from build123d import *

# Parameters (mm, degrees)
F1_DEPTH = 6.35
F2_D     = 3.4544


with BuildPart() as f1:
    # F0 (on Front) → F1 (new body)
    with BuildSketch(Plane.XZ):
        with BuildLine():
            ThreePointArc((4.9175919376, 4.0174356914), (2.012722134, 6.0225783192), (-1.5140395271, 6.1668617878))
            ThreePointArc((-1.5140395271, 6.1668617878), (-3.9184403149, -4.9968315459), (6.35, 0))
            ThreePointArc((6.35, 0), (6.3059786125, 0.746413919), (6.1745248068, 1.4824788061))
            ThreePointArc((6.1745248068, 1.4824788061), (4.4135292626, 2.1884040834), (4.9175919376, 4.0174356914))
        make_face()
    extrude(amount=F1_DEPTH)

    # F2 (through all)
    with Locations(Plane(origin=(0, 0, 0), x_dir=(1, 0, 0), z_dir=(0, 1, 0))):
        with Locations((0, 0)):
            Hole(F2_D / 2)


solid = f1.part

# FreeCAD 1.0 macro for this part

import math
import FreeCAD as App
import Part
import Sketcher
Q = App.Units.Quantity

doc = App.newDocument("Part")
body = doc.addObject("PartDesign::Body", "Body")

sketch1 = body.newObject("Sketcher::SketchObject", "Sketch")
sketch1.AttachmentSupport = (doc.getObject("XZ_Plane"), [""])
sketch1.MapMode = "FlatFace"
sketch1.addGeometry([
    Part.ArcOfCircle(Part.Circle(App.Vector(0, 0, 0), App.Vector(0, 0, 1), 6.3), math.radians(39), math.radians(104)),
    Part.ArcOfCircle(Part.Circle(App.Vector(0, 0, 0), App.Vector(0, 0, 1), 6.3), math.radians(104), math.radians(360)),
    Part.ArcOfCircle(Part.Circle(App.Vector(0, 0, 0), App.Vector(0, 0, 1), 6.4), math.radians(0), math.radians(13.5)),
    Part.ArcOfCircle(Part.Circle(App.Vector(5.7, 2.8, 0), App.Vector(0, 0, 1), 1.4), math.radians(123), math.radians(290)),
], False)
sketch1.addConstraint([
    Sketcher.Constraint("Tangent", 0, 2, 1, 1),
    Sketcher.Constraint("Tangent", 1, 2, 2, 1),
    Sketcher.Constraint("Coincident", 2, 2, 3, 2),
    Sketcher.Constraint("Coincident", 3, 1, 0, 1),
    Sketcher.Constraint("Coincident", 0, 3, -1, 1),
    Sketcher.Constraint("Coincident", 2, 3, -1, 1),
    Sketcher.Constraint("PointOnObject", 1, 2, -1),
    Sketcher.Constraint("Radius", 0, Q("0.25 in")),
    Sketcher.Constraint("Radius", 3, Q("1.423708 mm")),
    Sketcher.Constraint("DistanceX", 0, 2, -1, 1, Q("1.51404 mm")),
    Sketcher.Constraint("DistanceY", -1, 1, 2, 2, Q("1.482479 mm")),
    Sketcher.Constraint("DistanceX", -1, 1, 3, 1, Q("4.917592 mm")),
])
pad1 = body.newObject("PartDesign::Pad", "Pad")
pad1.Profile = sketch1
pad1.Length = Q("0.25 in")

sketch2 = body.newObject("Sketcher::SketchObject", "Sketch001")
sketch2.AttachmentSupport = (doc.getObject("XZ_Plane"), [""])
sketch2.MapMode = "FlatFace"
sketch2.addGeometry(Part.Circle(App.Vector(0, 0, 0), App.Vector(0, 0, 1), 1.7), False)
sketch2.addConstraint([
    Sketcher.Constraint("Coincident", 0, 3, -1, 1),
    Sketcher.Constraint("Diameter", 0, Q("0.136 in")),
])
doc.recompute()
hole = body.newObject("PartDesign::Hole", "Hole")
hole.Profile = sketch2
hole.ThreadType = "None"
hole.Diameter = Q("0.136 in")
hole.DepthType = "ThroughAll"
hole.Reversed = True

doc.recompute()
